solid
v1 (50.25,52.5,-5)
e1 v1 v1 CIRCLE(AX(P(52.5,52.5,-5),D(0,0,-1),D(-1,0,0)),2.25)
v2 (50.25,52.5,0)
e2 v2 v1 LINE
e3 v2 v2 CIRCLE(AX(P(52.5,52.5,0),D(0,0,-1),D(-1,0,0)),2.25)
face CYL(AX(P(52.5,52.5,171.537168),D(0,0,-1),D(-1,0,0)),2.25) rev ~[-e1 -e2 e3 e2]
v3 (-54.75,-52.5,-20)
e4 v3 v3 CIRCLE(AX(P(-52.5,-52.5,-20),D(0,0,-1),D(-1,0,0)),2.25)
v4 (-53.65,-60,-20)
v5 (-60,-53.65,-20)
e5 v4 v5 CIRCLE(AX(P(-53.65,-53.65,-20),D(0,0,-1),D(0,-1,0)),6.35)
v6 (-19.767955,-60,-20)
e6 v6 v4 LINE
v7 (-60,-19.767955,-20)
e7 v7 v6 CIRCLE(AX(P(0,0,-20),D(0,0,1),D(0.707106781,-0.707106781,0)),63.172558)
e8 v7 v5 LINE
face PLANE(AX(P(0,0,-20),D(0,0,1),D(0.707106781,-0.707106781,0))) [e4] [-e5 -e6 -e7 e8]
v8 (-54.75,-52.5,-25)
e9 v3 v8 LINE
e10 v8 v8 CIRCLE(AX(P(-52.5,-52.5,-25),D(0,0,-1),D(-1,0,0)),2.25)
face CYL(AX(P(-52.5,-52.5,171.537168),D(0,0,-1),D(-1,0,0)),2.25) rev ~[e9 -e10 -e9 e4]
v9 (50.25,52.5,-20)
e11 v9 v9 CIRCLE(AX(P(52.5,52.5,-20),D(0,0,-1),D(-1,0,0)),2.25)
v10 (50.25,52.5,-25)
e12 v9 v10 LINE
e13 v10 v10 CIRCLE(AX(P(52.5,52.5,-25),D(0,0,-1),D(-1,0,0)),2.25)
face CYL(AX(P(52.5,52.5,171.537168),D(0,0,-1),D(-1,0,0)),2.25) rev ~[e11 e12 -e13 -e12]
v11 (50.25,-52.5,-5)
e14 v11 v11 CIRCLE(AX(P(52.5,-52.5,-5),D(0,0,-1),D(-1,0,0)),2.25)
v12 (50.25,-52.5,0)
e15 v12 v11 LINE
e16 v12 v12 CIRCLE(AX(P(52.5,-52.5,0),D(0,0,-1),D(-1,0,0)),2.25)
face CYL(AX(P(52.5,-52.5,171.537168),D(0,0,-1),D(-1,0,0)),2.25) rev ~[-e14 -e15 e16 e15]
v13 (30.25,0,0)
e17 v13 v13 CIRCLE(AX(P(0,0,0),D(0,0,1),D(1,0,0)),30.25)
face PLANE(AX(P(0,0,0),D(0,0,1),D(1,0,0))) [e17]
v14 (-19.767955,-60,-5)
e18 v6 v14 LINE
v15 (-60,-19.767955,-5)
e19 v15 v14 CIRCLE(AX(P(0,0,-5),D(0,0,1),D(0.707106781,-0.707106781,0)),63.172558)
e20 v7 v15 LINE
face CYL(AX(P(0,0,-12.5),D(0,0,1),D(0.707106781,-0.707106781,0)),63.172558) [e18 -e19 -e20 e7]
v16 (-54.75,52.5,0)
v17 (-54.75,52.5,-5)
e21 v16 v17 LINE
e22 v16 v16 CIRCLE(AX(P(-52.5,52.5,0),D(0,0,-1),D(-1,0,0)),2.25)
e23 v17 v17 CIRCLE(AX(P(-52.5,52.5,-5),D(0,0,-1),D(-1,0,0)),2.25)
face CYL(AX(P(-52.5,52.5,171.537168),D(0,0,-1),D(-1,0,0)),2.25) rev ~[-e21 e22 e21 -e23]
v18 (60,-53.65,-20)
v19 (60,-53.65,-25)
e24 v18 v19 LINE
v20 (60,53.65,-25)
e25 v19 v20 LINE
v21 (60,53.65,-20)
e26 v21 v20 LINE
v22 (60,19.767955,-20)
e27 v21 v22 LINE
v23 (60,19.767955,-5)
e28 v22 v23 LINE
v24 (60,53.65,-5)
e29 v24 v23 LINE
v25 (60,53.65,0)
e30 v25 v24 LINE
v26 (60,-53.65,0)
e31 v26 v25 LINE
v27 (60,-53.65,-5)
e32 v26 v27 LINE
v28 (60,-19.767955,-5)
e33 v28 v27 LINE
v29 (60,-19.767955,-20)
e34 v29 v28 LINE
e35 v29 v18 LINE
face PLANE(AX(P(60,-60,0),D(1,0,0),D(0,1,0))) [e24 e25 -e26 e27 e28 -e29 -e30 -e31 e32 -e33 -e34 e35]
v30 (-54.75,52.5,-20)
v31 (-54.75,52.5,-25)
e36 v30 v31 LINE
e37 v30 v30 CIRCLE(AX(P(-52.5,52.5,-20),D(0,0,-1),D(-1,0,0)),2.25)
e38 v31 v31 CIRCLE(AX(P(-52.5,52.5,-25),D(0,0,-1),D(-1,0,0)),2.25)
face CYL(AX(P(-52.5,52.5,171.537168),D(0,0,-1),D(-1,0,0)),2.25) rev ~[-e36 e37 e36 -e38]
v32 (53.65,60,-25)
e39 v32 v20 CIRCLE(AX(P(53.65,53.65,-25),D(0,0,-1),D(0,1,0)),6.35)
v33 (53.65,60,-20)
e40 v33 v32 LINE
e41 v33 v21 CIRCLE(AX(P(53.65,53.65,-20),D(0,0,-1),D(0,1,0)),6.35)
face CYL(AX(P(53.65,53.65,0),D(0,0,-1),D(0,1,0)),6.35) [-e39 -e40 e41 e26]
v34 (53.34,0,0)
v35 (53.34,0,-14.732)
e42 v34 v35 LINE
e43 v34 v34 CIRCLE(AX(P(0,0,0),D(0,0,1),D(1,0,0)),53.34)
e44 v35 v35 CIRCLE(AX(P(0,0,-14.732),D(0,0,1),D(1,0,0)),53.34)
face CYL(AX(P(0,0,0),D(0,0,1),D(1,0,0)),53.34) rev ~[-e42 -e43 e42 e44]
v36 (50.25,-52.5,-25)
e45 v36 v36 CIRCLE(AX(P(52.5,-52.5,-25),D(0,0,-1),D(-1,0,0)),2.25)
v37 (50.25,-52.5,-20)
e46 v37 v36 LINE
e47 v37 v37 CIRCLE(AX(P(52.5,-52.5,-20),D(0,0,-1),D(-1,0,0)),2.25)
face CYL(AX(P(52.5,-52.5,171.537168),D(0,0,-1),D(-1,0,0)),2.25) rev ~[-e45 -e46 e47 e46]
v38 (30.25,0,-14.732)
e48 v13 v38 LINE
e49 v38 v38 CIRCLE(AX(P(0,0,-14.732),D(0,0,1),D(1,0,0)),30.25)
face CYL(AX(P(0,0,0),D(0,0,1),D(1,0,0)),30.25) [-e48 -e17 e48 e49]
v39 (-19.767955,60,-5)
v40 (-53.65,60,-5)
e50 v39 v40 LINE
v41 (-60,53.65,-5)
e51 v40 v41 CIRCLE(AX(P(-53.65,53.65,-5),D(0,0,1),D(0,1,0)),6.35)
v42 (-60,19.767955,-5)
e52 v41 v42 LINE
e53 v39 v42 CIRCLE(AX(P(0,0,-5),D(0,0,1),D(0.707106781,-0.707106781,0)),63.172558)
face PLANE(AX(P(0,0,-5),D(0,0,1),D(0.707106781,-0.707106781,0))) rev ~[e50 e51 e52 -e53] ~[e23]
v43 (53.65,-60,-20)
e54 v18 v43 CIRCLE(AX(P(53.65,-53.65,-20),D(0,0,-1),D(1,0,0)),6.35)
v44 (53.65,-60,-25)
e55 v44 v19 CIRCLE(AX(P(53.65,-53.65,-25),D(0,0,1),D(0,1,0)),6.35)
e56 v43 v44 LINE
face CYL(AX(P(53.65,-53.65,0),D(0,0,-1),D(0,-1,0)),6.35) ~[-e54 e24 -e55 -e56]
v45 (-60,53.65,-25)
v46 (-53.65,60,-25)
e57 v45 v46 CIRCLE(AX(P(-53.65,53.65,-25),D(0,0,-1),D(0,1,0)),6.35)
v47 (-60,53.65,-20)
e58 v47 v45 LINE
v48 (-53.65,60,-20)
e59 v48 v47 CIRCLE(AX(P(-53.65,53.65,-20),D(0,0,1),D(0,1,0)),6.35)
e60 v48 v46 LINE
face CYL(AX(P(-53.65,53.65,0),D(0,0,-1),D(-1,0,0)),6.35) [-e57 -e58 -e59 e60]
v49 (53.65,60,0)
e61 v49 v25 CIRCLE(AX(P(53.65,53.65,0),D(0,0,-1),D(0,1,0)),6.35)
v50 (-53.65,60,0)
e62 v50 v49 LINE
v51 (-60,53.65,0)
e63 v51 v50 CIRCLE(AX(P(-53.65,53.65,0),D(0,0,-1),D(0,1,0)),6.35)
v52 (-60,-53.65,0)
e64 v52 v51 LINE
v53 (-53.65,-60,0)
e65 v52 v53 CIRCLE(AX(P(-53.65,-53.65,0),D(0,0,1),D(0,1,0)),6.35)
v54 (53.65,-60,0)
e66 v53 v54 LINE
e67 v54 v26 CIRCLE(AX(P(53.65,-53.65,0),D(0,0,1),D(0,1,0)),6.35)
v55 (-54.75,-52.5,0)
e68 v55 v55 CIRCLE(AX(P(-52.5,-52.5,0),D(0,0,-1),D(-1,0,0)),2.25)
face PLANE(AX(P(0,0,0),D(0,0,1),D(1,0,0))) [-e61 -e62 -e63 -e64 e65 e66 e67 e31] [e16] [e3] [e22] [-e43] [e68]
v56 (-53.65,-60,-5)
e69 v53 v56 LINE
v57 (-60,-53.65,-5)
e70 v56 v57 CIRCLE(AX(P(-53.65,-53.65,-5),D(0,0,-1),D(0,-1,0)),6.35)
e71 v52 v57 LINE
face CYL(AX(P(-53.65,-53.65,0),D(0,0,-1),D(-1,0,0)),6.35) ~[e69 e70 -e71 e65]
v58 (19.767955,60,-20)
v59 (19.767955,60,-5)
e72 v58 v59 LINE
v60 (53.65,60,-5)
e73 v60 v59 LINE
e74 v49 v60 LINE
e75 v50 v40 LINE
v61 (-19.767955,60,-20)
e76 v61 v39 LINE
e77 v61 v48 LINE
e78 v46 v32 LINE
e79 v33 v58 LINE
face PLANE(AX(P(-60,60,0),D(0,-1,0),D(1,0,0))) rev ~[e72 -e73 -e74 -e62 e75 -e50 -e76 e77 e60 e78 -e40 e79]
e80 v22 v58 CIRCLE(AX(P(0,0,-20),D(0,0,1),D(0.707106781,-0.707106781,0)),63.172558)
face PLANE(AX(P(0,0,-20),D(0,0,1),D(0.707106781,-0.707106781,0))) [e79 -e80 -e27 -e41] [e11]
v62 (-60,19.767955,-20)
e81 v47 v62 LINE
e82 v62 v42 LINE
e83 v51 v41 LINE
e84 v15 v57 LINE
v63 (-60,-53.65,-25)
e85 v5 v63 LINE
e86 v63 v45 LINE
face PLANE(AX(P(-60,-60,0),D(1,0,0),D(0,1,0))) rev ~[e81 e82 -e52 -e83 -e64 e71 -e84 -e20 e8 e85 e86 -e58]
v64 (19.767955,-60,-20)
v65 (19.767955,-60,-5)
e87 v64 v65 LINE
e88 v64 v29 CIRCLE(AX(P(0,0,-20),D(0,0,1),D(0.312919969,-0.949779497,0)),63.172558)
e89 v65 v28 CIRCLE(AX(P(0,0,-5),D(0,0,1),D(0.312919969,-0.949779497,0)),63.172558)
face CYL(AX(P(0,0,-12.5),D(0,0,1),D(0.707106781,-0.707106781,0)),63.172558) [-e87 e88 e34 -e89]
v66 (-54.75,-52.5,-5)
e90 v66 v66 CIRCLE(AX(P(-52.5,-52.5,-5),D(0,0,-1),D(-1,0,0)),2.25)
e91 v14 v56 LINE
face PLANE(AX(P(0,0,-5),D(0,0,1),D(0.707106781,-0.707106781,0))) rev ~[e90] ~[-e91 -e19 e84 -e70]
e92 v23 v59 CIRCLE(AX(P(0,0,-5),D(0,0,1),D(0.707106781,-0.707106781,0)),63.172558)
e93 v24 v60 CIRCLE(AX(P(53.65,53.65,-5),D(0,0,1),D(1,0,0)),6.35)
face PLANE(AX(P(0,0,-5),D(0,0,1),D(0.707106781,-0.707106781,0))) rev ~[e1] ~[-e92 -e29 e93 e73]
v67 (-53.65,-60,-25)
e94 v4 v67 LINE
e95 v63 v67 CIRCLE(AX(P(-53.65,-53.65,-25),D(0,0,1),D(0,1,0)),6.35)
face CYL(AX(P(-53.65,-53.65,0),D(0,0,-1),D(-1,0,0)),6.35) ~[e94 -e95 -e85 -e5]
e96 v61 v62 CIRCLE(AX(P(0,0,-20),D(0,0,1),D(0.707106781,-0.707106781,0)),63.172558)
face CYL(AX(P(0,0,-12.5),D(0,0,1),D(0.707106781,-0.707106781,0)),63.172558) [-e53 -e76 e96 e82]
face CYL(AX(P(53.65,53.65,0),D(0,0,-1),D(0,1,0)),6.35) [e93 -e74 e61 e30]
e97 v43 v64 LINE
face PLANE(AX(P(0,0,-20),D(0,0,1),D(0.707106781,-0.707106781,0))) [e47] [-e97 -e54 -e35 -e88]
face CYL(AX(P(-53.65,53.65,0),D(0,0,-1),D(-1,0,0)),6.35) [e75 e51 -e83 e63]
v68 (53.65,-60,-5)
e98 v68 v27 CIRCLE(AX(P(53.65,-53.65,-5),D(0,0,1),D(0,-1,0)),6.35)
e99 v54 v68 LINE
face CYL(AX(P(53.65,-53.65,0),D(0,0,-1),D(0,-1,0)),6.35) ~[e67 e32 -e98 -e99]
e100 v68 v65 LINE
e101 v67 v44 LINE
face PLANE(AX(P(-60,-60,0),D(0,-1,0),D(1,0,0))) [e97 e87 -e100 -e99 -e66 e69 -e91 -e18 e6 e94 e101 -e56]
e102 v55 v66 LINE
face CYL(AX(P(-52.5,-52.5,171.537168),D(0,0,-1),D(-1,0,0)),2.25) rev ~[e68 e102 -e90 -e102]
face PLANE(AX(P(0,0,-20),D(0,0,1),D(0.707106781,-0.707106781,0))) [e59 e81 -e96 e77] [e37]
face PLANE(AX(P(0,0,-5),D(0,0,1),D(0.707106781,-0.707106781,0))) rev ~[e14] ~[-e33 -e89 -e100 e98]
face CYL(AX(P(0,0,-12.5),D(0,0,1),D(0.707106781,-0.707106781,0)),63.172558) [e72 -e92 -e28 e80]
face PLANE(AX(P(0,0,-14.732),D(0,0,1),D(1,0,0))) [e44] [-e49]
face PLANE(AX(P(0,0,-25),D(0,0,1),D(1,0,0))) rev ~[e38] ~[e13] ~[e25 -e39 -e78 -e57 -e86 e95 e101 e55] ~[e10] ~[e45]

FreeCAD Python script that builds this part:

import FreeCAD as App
import Part
import Sketcher

V = App.Vector


def edges_at(feature, points):
    """Names of the edges that pass closest to the given points."""
    edges = feature.Shape.Edges
    near = lambda p: min(range(len(edges)), key=lambda i: edges[i].distToShape(Part.Vertex(*p))[0])
    return sorted({f"Edge{near(p) + 1}" for p in points})


def add_polygon(sketch, points):
    """Adds a closed chain of lines whose ends are joined by coincident constraints."""
    first, n = sketch.GeometryCount, len(points)
    for a, b in zip(points, points[1:] + points[:1]):
        sketch.addGeometry(Part.LineSegment(App.Vector(*a, 0), App.Vector(*b, 0)), False)
    for i in range(n):
        sketch.addConstraint(Sketcher.Constraint("Coincident", first + i, 2, first + (i + 1) % n, 1))

doc = App.newDocument("Part")
params = doc.addObject("Spreadsheet::Sheet", "Params")
for row, (alias, value) in enumerate([
    ("sketch1_width", "120 mm"),
    ("pad1_length", "25 mm"),
    ("sketch2_diameter", "4.5 mm"),
    ("hole_diameter", "4.5 mm"),
    ("sketch3_diameter", "60.5 mm"),
    ("sketch3_diameter2", "106.68 mm"),
    ("pocket1_length", "14.732 mm"),
    ("fillet_radius", "6.35 mm"),
    ("sketch4_height", "15 mm"),
    ("sketch4_width", "19.05 mm"),
    ("groove_angle", "360 deg"),
], start=1):
    params.set(f"A{row}", alias)
    params.set(f"B{row}", "=" + value)
    params.setAlias(f"B{row}", alias)

body = doc.addObject("PartDesign::Body", "Body")

# Sketch on XY plane
sketch1 = body.newObject("Sketcher::SketchObject", "Sketch")
sketch1.AttachmentSupport = (doc.getObject("XY_Plane"), [""])
sketch1.MapMode = "FlatFace"
add_polygon(sketch1, [(-60, 60), (-60, -60), (60, -60), (60, 60)])  # lines 0-3
sketch1.addConstraint([
    Sketcher.Constraint("Vertical", 0),
    Sketcher.Constraint("Horizontal", 1),
    Sketcher.Constraint("Vertical", 2),
    Sketcher.Constraint("Horizontal", 3),
    Sketcher.Constraint("Symmetric", 0, 2, 2, 2, -1, 1),
    Sketcher.Constraint("Equal", 3, 0),
    Sketcher.Constraint("DistanceX", 1, 1, 1, 2, 120.0),
])
sketch1.setExpression("Constraints[10]", "Params.sketch1_width")
pad1 = body.newObject("PartDesign::Pad", "Pad")
pad1.Profile = sketch1
pad1.setExpression("Length", "Params.pad1_length")
pad1.Reversed = True

# Sketch on XY plane
sketch2 = body.newObject("Sketcher::SketchObject", "Sketch001")
sketch2.AttachmentSupport = (doc.getObject("XY_Plane"), [""])
sketch2.MapMode = "FlatFace"
sketch2.addGeometry([
    Part.Circle(V(-52.5, -52.5, 0), V(0, 0, 1), 2.25),
    Part.Circle(V(52.5, -52.5, 0), V(0, 0, 1), 2.25),
    Part.Circle(V(52.5, 52.5, 0), V(0, 0, 1), 2.25),
    Part.Circle(V(-52.5, 52.5, 0), V(0, 0, 1), 2.25),
], False)
sketch2.addConstraint([
    Sketcher.Constraint("Equal", 0, 1),
    Sketcher.Constraint("Equal", 1, 2),
    Sketcher.Constraint("Equal", 2, 3),
    Sketcher.Constraint("Symmetric", 0, 3, 2, 3, -1, 1),
    Sketcher.Constraint("Symmetric", 1, 3, 3, 3, -1, 1),
    Sketcher.Constraint("Symmetric", 0, 3, 1, 3, -2),
    Sketcher.Constraint("Diameter", 0, 4.5),
    Sketcher.Constraint("DistanceX", 0, 3, 1, 3, 105.0),
    Sketcher.Constraint("DistanceY", 1, 3, 2, 3, 105.0),
])
sketch2.setExpression("Constraints[6]", "Params.sketch2_diameter")
doc.recompute()
hole = body.newObject("PartDesign::Hole", "Hole")
hole.Profile = sketch2
hole.ThreadType = "None"
hole.setExpression("Diameter", "Params.hole_diameter")
hole.DepthType = "ThroughAll"

# Sketch on XY plane
sketch3 = body.newObject("Sketcher::SketchObject", "Sketch002")
sketch3.AttachmentSupport = (doc.getObject("XY_Plane"), [""])
sketch3.MapMode = "FlatFace"
sketch3.addGeometry([
    Part.Circle(V(0, 0, 0), V(0, 0, 1), 53.34),
    Part.Circle(V(0, 0, 0), V(0, 0, 1), 30.25),
], False)
sketch3.addConstraint([
    Sketcher.Constraint("Coincident", 0, 3, -1, 1),
    Sketcher.Constraint("Coincident", 1, 3, -1, 1),
    Sketcher.Constraint("Diameter", 1, 60.5),
    Sketcher.Constraint("Diameter", 0, 106.68),
])
sketch3.setExpression("Constraints[2]", "Params.sketch3_diameter")
sketch3.setExpression("Constraints[3]", "Params.sketch3_diameter2")
pocket1 = body.newObject("PartDesign::Pocket", "Pocket")
pocket1.Profile = sketch3
pocket1.setExpression("Length", "Params.pocket1_length")
doc.recompute()

fillet = body.newObject("PartDesign::Fillet", "Fillet")
fillet.Base = (pocket1, edges_at(pocket1, [
    (60, -60, -12.5),
    (-60, -60, -12.5),
    (60, 60, -12.5),
    (-60, 60, -12.5),
]))
fillet.setExpression("Radius", "Params.fillet_radius")

# Sketch on an angled plane
sketch4 = body.newObject("Sketcher::SketchObject", "Sketch003")
sketch4.Placement = App.Placement(V(0, 0, 0), App.Rotation(V(-0.707106781, 0.707106781, 0), V(0, 0, 0.999999999), V(0.707106781, 0.707106781, 0), "ZXY"))
add_polygon(sketch4, [(-82.222558, -5), (-82.222558, -20), (-63.172558, -20), (-63.172558, -5)])  # lines 0-3
sketch4.addConstraint([
    Sketcher.Constraint("Vertical", 0),
    Sketcher.Constraint("Horizontal", 1),
    Sketcher.Constraint("Vertical", 2),
    Sketcher.Constraint("Horizontal", 3),
    Sketcher.Constraint("DistanceY", 0, 2, 0, 1, 15.0),
    Sketcher.Constraint("DistanceY", 0, 2, -1, 1, 20.0),
    Sketcher.Constraint("DistanceX", 1, 1, 1, 2, 19.05),
    Sketcher.Constraint("DistanceX", 0, 2, -1, 1, 82.222558),
])
sketch4.setExpression("Constraints[8]", "Params.sketch4_height")
sketch4.setExpression("Constraints[10]", "Params.sketch4_width")
groove = body.newObject("PartDesign::Groove", "Groove")
groove.Profile = sketch4
groove.ReferenceAxis = (sketch4, ["V_Axis"])
groove.setExpression("Angle", "Params.groove_angle")

doc.recompute()
